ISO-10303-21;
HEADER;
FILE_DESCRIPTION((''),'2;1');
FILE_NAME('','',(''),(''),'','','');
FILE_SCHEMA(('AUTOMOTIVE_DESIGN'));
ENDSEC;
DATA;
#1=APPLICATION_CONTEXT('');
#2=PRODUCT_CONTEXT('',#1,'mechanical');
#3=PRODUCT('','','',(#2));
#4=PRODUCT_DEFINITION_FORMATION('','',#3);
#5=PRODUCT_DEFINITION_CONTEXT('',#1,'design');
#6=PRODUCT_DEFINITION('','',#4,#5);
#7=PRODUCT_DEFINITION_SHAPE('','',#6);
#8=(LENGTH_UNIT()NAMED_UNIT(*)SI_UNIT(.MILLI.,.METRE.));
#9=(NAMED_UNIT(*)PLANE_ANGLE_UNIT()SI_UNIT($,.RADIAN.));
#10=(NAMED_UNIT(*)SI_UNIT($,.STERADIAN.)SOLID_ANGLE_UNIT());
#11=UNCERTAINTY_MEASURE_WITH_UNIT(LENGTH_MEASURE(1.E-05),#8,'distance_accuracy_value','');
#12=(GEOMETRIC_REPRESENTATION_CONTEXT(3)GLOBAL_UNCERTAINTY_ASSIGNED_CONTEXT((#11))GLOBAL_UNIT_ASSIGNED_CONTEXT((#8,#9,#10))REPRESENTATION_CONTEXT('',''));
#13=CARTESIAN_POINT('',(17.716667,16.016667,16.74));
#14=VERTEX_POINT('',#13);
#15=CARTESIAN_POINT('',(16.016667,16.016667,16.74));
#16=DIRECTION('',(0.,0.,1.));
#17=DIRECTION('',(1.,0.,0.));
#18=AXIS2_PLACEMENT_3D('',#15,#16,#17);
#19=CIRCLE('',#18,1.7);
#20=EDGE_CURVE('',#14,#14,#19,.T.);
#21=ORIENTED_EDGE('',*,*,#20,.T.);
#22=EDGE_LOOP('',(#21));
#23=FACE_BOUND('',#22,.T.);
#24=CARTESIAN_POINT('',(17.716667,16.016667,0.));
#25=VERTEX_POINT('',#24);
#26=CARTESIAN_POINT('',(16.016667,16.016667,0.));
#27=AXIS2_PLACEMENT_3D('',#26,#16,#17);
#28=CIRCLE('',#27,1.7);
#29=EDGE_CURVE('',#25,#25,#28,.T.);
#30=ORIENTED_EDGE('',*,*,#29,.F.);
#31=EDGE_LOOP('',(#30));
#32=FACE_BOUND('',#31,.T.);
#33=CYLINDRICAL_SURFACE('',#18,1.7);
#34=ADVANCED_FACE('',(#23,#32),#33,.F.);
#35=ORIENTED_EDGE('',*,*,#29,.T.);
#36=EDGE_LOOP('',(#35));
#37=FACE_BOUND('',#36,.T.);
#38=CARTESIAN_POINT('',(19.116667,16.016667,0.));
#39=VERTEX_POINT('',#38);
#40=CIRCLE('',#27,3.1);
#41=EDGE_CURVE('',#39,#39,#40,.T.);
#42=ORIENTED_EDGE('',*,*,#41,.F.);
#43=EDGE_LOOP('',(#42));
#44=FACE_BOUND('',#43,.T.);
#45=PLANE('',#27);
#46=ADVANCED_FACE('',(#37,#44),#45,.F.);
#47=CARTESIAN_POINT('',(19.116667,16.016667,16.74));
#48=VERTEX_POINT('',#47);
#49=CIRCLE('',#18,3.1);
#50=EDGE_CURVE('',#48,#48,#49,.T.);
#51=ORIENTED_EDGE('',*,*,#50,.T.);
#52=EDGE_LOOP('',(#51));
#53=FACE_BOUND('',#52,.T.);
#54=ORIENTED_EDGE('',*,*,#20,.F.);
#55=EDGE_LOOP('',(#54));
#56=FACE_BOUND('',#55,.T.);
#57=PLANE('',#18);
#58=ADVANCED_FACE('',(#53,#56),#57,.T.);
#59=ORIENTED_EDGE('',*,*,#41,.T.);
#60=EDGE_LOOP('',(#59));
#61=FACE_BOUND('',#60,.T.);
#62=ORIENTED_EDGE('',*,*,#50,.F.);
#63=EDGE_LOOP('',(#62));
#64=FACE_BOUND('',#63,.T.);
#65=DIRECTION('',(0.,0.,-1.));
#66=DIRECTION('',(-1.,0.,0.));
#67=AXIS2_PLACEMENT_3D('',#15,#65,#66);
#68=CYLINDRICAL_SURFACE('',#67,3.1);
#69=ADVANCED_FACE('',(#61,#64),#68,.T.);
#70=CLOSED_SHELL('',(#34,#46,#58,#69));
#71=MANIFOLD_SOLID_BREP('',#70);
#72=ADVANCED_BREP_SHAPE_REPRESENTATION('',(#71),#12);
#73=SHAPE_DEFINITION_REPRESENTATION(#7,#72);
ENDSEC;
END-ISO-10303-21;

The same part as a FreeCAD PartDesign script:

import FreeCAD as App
import Part
import Sketcher
from FreeCAD import Vector
Q = App.Units.Quantity

doc = App.newDocument("Part")
body = doc.addObject("PartDesign::Body", "Body")

# Sketch on XY plane
sketch1 = body.newObject("Sketcher::SketchObject", "Sketch")
sketch1.AttachmentSupport = (doc.getObject("XY_Plane"), [""])
sketch1.MapMode = "FlatFace"
sketch1.addGeometry(Part.Circle(Vector(16, 16, 0), Vector(0, 0, 1), 3.1), False)
sketch1.addGeometry(Part.Circle(Vector(16, 16, 0), Vector(0, 0, 1), 1.6), False)
sketch1.addConstraint(Sketcher.Constraint("Coincident", 1, 3, 0, 3))
sketch1.addConstraint(Sketcher.Constraint("Diameter", 0, Q("6.2 mm")))
sketch1.addConstraint(Sketcher.Constraint("Diameter", 1, Q("3.1 mm")))
sketch1.addConstraint(Sketcher.Constraint("DistanceX", -1, 1, 0, 3, Q("16.016667 mm")))
sketch1.addConstraint(Sketcher.Constraint("DistanceY", -1, 1, 0, 3, Q("16.016667 mm")))
pad1 = body.newObject("PartDesign::Pad", "Pad")
pad1.Profile = sketch1
pad1.Length = 16.74

# Sketch on XY plane
sketch2 = body.newObject("Sketcher::SketchObject", "Sketch001")
sketch2.AttachmentSupport = (doc.getObject("XY_Plane"), [""])
sketch2.MapMode = "FlatFace"
sketch2.AttachmentOffset = App.Placement(Vector(0, 0, 16.74), App.Rotation())
sketch2.addGeometry(Part.Circle(Vector(16, 16, 0), Vector(0, 0, 1), 1.7), False)
sketch2.addConstraint(Sketcher.Constraint("Diameter", 0, Q("3.4 mm")))
sketch2.addConstraint(Sketcher.Constraint("DistanceX", -1, 1, 0, 3, Q("16.016667 mm")))
sketch2.addConstraint(Sketcher.Constraint("DistanceY", -1, 1, 0, 3, Q("16.016667 mm")))
doc.recompute()
hole = body.newObject("PartDesign::Hole", "Hole")
hole.Profile = sketch2
hole.ThreadType = "None"
hole.Diameter = 3.4
hole.DepthType = "ThroughAll"

doc.recompute()
